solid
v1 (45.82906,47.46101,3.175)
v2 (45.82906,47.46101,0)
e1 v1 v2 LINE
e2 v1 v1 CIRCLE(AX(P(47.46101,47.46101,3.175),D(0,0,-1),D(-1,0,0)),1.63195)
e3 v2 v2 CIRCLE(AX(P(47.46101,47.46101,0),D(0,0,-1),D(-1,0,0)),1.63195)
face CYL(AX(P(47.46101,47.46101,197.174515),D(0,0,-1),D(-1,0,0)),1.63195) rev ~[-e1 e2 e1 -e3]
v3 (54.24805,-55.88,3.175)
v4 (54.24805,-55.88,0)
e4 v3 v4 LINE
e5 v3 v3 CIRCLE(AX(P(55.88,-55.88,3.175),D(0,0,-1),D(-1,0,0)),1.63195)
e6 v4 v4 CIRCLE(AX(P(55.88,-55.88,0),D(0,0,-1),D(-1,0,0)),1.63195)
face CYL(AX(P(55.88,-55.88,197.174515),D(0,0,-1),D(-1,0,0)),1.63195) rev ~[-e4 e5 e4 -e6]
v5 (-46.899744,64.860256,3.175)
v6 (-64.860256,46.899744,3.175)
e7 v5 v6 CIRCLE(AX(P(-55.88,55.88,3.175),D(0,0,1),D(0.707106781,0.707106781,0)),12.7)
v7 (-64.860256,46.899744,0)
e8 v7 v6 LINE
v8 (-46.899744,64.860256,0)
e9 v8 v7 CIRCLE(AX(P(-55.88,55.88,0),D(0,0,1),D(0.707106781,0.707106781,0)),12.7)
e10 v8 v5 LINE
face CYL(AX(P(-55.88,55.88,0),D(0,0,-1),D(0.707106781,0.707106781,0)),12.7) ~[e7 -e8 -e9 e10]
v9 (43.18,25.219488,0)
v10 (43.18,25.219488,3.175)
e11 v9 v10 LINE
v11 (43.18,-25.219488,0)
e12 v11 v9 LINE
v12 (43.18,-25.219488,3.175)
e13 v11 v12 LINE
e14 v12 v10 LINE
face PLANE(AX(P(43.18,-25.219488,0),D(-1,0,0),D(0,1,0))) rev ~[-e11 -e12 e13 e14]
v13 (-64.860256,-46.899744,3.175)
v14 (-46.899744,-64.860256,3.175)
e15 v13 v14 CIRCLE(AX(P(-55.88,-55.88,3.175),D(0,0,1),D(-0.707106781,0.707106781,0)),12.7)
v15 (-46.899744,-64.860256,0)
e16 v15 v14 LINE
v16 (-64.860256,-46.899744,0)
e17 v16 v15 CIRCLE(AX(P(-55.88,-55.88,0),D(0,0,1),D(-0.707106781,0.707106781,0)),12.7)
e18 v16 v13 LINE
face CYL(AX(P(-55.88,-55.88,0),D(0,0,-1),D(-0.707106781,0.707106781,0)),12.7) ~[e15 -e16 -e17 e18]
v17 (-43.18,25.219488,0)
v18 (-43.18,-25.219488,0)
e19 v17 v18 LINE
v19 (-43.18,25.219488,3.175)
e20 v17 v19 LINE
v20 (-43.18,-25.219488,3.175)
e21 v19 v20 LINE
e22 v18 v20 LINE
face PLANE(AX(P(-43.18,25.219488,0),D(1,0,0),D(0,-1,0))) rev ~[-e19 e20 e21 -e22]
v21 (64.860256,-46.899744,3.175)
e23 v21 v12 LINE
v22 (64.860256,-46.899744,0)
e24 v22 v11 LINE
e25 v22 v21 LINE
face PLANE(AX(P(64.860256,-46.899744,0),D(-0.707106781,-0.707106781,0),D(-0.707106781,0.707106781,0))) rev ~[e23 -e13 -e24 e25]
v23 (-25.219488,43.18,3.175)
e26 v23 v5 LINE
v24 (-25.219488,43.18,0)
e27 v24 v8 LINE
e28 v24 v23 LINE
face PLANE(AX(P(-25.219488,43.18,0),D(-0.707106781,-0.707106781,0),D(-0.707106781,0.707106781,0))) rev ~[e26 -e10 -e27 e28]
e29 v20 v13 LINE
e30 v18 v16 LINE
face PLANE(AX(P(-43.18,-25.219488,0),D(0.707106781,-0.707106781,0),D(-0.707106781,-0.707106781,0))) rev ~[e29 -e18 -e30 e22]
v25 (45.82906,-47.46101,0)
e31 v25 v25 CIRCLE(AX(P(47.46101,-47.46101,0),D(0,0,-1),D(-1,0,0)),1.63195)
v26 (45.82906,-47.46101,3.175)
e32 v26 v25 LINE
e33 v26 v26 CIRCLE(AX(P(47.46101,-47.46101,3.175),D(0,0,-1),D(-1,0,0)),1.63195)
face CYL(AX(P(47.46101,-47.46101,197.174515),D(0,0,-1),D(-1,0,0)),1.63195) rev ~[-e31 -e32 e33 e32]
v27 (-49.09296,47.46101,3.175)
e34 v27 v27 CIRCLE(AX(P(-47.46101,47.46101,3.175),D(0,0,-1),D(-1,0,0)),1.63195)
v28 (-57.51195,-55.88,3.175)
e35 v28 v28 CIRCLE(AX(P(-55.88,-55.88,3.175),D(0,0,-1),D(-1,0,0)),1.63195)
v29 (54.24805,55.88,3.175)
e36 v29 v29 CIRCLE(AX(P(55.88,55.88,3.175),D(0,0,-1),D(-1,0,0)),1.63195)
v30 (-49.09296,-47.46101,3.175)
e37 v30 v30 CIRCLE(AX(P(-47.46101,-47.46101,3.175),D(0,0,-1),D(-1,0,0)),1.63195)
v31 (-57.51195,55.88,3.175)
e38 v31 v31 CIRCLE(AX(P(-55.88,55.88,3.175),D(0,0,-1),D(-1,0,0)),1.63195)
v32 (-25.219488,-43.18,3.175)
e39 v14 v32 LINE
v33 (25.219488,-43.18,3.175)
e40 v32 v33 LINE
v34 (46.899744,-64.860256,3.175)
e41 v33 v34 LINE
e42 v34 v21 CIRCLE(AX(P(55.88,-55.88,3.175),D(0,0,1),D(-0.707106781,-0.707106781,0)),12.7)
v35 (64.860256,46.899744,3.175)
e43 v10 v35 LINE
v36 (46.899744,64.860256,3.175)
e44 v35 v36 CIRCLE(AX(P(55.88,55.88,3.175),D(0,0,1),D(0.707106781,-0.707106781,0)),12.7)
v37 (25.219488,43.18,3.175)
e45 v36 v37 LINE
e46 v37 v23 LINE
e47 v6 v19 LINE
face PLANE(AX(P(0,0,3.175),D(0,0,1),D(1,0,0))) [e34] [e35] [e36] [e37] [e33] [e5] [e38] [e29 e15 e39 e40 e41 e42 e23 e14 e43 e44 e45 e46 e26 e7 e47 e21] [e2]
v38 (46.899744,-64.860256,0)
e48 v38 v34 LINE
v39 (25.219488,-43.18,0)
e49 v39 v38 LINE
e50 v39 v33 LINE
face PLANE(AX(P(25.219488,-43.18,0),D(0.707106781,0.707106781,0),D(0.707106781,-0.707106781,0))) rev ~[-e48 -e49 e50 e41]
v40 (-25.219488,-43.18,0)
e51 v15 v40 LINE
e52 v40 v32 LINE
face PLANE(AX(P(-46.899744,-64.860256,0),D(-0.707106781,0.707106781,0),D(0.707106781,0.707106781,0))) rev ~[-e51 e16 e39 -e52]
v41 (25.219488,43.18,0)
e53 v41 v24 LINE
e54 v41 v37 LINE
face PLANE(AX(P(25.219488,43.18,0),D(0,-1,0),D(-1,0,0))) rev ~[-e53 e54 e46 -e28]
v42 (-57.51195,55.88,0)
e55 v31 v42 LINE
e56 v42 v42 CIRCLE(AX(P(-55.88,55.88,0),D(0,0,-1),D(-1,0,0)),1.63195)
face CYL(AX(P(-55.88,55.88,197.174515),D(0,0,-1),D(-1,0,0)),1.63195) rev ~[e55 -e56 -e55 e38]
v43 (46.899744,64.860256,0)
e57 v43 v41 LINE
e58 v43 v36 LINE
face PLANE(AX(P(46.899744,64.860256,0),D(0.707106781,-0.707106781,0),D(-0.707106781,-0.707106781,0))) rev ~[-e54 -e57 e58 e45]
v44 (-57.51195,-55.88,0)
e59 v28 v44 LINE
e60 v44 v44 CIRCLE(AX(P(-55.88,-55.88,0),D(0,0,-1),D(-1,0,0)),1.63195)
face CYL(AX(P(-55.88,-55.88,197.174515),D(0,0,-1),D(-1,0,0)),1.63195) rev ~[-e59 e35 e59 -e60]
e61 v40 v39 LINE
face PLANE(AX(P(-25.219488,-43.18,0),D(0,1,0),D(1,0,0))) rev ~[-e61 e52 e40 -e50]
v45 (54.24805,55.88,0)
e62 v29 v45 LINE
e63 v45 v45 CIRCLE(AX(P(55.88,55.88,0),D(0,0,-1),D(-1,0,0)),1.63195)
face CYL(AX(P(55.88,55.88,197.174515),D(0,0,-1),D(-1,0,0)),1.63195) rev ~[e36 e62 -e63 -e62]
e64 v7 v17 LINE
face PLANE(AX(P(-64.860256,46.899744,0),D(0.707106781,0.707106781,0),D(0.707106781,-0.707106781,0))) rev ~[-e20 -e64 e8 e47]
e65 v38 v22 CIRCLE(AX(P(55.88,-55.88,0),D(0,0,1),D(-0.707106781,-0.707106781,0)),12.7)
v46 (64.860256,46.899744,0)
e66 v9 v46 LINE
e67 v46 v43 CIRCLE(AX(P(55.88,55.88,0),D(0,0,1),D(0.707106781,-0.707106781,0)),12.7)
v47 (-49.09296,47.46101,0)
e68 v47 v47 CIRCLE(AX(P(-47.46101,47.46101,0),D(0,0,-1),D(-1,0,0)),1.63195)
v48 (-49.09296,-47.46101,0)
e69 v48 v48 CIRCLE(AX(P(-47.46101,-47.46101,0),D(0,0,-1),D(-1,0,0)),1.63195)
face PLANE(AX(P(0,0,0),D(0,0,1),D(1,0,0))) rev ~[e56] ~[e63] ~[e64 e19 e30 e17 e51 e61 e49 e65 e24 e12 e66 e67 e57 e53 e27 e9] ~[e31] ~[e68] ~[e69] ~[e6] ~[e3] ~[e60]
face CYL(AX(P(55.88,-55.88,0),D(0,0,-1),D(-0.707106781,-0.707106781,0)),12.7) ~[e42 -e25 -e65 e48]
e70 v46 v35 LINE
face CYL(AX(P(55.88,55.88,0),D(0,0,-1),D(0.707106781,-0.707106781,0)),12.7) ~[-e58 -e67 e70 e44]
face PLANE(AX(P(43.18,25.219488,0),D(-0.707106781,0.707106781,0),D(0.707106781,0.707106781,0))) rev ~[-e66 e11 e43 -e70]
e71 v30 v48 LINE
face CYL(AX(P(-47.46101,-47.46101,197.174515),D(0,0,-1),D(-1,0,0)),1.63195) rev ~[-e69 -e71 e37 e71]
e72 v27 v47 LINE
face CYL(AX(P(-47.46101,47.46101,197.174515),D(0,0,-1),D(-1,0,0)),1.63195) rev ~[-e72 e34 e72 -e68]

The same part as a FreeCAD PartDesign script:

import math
import FreeCAD as App
import Part
import Sketcher
from FreeCAD import Vector
Q = App.Units.Quantity

doc = App.newDocument("Part")
body = doc.addObject("PartDesign::Body", "Body")

# Sketch on XY plane
sketch1 = doc.addObject("Sketcher::SketchObject", "Sketch")
body.addObject(sketch1)
sketch1.AttachmentSupport = (doc.XY_Plane, [""])
sketch1.MapMode = "FlatFace"
sketch1.addGeometry(Part.LineSegment(Vector(-25, 43, 0), Vector(-47, 65, 0)), False)
sketch1.addGeometry(Part.ArcOfCircle(Part.Circle(Vector(-56, 56, 0), Vector(0, 0, 1), 13), math.radians(45), math.radians(225)), False)
sketch1.addGeometry(Part.LineSegment(Vector(-65, 47, 0), Vector(-43, 25, 0)), False)
sketch1.addGeometry(Part.LineSegment(Vector(-43, 25, 0), Vector(-43, -25, 0)), False)
sketch1.addGeometry(Part.LineSegment(Vector(-43, -25, 0), Vector(-65, -47, 0)), False)
sketch1.addGeometry(Part.ArcOfCircle(Part.Circle(Vector(-56, -56, 0), Vector(0, 0, 1), 13), math.radians(135), math.radians(315)), False)
sketch1.addGeometry(Part.LineSegment(Vector(-47, -65, 0), Vector(-25, -43, 0)), False)
sketch1.addGeometry(Part.LineSegment(Vector(-25, -43, 0), Vector(25, -43, 0)), False)
sketch1.addGeometry(Part.LineSegment(Vector(25, -43, 0), Vector(47, -65, 0)), False)
sketch1.addGeometry(Part.ArcOfCircle(Part.Circle(Vector(56, -56, 0), Vector(0, 0, 1), 13), math.radians(-135), math.radians(45)), False)
sketch1.addGeometry(Part.LineSegment(Vector(65, -47, 0), Vector(43, -25, 0)), False)
sketch1.addGeometry(Part.LineSegment(Vector(43, -25, 0), Vector(43, 25, 0)), False)
sketch1.addGeometry(Part.LineSegment(Vector(43, 25, 0), Vector(65, 47, 0)), False)
sketch1.addGeometry(Part.ArcOfCircle(Part.Circle(Vector(56, 56, 0), Vector(0, 0, 1), 13), math.radians(-45), math.radians(135)), False)
sketch1.addGeometry(Part.LineSegment(Vector(47, 65, 0), Vector(25, 43, 0)), False)
sketch1.addGeometry(Part.LineSegment(Vector(25, 43, 0), Vector(-25, 43, 0)), False)
sketch1.addConstraint(Sketcher.Constraint("Tangent", 0, 2, 1, 1))
sketch1.addConstraint(Sketcher.Constraint("Tangent", 1, 2, 2, 1))
sketch1.addConstraint(Sketcher.Constraint("Coincident", 2, 2, 3, 1))
sketch1.addConstraint(Sketcher.Constraint("Coincident", 3, 2, 4, 1))
sketch1.addConstraint(Sketcher.Constraint("Tangent", 4, 2, 5, 1))
sketch1.addConstraint(Sketcher.Constraint("Tangent", 5, 2, 6, 1))
sketch1.addConstraint(Sketcher.Constraint("Coincident", 6, 2, 7, 1))
sketch1.addConstraint(Sketcher.Constraint("Coincident", 7, 2, 8, 1))
sketch1.addConstraint(Sketcher.Constraint("Tangent", 8, 2, 9, 1))
sketch1.addConstraint(Sketcher.Constraint("Tangent", 9, 2, 10, 1))
sketch1.addConstraint(Sketcher.Constraint("Coincident", 10, 2, 11, 1))
sketch1.addConstraint(Sketcher.Constraint("Coincident", 11, 2, 12, 1))
sketch1.addConstraint(Sketcher.Constraint("Tangent", 12, 2, 13, 1))
sketch1.addConstraint(Sketcher.Constraint("Tangent", 13, 2, 14, 1))
sketch1.addConstraint(Sketcher.Constraint("Coincident", 14, 2, 15, 1))
sketch1.addConstraint(Sketcher.Constraint("Coincident", 15, 2, 0, 1))
sketch1.addConstraint(Sketcher.Constraint("Vertical", 3))
sketch1.addConstraint(Sketcher.Constraint("Horizontal", 7))
sketch1.addConstraint(Sketcher.Constraint("Vertical", 11))
sketch1.addConstraint(Sketcher.Constraint("Horizontal", 15))
sketch1.addConstraint(Sketcher.Constraint("Equal", 1, 5))
sketch1.addConstraint(Sketcher.Constraint("Equal", 5, 9))
sketch1.addConstraint(Sketcher.Constraint("Equal", 9, 13))
sketch1.addConstraint(Sketcher.Constraint("Symmetric", 1, 3, 9, 3, -1, 1))
sketch1.addConstraint(Sketcher.Constraint("Symmetric", 5, 3, 13, 3, -1, 1))
sketch1.addConstraint(Sketcher.Constraint("Symmetric", 2, 2, 10, 2, -1, 1))
sketch1.addConstraint(Sketcher.Constraint("Symmetric", 6, 2, 14, 2, -1, 1))
sketch1.addConstraint(Sketcher.Constraint("Symmetric", 5, 3, 9, 3, -2))
sketch1.addConstraint(Sketcher.Constraint("Parallel", 0, 2))
sketch1.addConstraint(Sketcher.Constraint("Perpendicular", 2, 4))
sketch1.addConstraint(Sketcher.Constraint("Parallel", 4, 6))
sketch1.addConstraint(Sketcher.Constraint("Perpendicular", 6, 8))
sketch1.addConstraint(Sketcher.Constraint("Perpendicular", 10, 12))
sketch1.addConstraint(Sketcher.Constraint("Horizontal", 5, 2, 8, 2))
sketch1.addConstraint(Sketcher.Constraint("Equal", 15, 3))
sketch1.addConstraint(Sketcher.Constraint("Equal", 0, 2))
sketch1.addConstraint(Sketcher.Constraint("Radius", 1, Q("0.5 in")))
sketch1.addConstraint(Sketcher.Constraint("DistanceX", 1, 3, -1, 1, Q("2.2 in")))
sketch1.addConstraint(Sketcher.Constraint("DistanceX", 2, 2, -1, 1, Q("1.7 in")))
pad1 = doc.addObject("PartDesign::Pad", "Pad")
body.addObject(pad1)
pad1.Profile = sketch1
pad1.Length = Q("0.125 in")

# Sketch on XY plane
sketch2 = doc.addObject("Sketcher::SketchObject", "Sketch001")
body.addObject(sketch2)
sketch2.AttachmentSupport = (doc.XY_Plane, [""])
sketch2.MapMode = "FlatFace"
sketch2.AttachmentOffset = App.Placement(Vector(0, 0, 0.125 * 25.4), App.Rotation())
sketch2.addGeometry(Part.Circle(Vector(-55.9, 55.9, 0), Vector(0, 0, 1), 1.6), False)
sketch2.addGeometry(Part.Circle(Vector(55.9, 55.9, 0), Vector(0, 0, 1), 1.6), False)
sketch2.addGeometry(Part.Circle(Vector(55.9, -55.9, 0), Vector(0, 0, 1), 1.6), False)
sketch2.addGeometry(Part.Circle(Vector(-55.9, -55.9, 0), Vector(0, 0, 1), 1.6), False)
sketch2.addConstraint(Sketcher.Constraint("Equal", 0, 1))
sketch2.addConstraint(Sketcher.Constraint("Equal", 1, 2))
sketch2.addConstraint(Sketcher.Constraint("Equal", 2, 3))
sketch2.addConstraint(Sketcher.Constraint("Symmetric", 0, 3, 2, 3, -1, 1))
sketch2.addConstraint(Sketcher.Constraint("Symmetric", 1, 3, 3, 3, -1, 1))
sketch2.addConstraint(Sketcher.Constraint("Symmetric", 0, 3, 1, 3, -2))
sketch2.addConstraint(Sketcher.Constraint("Diameter", 0, Q("0.1285 in")))
sketch2.addConstraint(Sketcher.Constraint("DistanceX", 0, 3, -1, 1, Q("2.2 in")))
sketch2.addConstraint(Sketcher.Constraint("DistanceY", -1, 1, 0, 3, Q("2.2 in")))
doc.recompute()
hole = doc.addObject("PartDesign::Hole", "Hole")
body.addObject(hole)
hole.Profile = sketch2
hole.ThreadType = "None"
hole.Diameter = Q("0.1285 in")
hole.DepthType = "ThroughAll"

# Sketch on XY plane
sketch3 = doc.addObject("Sketcher::SketchObject", "Sketch002")
body.addObject(sketch3)
sketch3.AttachmentSupport = (doc.XY_Plane, [""])
sketch3.MapMode = "FlatFace"
sketch3.AttachmentOffset = App.Placement(Vector(0, 0, 0.125 * 25.4), App.Rotation())
sketch3.addGeometry(Part.Circle(Vector(-47.5, 47.5, 0), Vector(0, 0, 1), 1.6), False)
sketch3.addGeometry(Part.Circle(Vector(47.5, 47.5, 0), Vector(0, 0, 1), 1.6), False)
sketch3.addGeometry(Part.Circle(Vector(47.5, -47.5, 0), Vector(0, 0, 1), 1.6), False)
sketch3.addGeometry(Part.Circle(Vector(-47.5, -47.5, 0), Vector(0, 0, 1), 1.6), False)
sketch3.addConstraint(Sketcher.Constraint("Equal", 0, 1))
sketch3.addConstraint(Sketcher.Constraint("Equal", 1, 2))
sketch3.addConstraint(Sketcher.Constraint("Equal", 2, 3))
sketch3.addConstraint(Sketcher.Constraint("Symmetric", 0, 3, 2, 3, -1, 1))
sketch3.addConstraint(Sketcher.Constraint("Symmetric", 1, 3, 3, 3, -1, 1))
sketch3.addConstraint(Sketcher.Constraint("Symmetric", 0, 3, 1, 3, -2))
sketch3.addConstraint(Sketcher.Constraint("Diameter", 0, Q("0.1285 in")))
sketch3.addConstraint(Sketcher.Constraint("DistanceX", 0, 3, -1, 1, Q("47.46101 mm")))
sketch3.addConstraint(Sketcher.Constraint("DistanceY", -1, 1, 0, 3, Q("47.46101 mm")))
doc.recompute()
hole2 = doc.addObject("PartDesign::Hole", "Hole001")
body.addObject(hole2)
hole2.Profile = sketch3
hole2.ThreadType = "None"
hole2.Diameter = Q("0.1285 in")
hole2.DepthType = "ThroughAll"

doc.recompute()
